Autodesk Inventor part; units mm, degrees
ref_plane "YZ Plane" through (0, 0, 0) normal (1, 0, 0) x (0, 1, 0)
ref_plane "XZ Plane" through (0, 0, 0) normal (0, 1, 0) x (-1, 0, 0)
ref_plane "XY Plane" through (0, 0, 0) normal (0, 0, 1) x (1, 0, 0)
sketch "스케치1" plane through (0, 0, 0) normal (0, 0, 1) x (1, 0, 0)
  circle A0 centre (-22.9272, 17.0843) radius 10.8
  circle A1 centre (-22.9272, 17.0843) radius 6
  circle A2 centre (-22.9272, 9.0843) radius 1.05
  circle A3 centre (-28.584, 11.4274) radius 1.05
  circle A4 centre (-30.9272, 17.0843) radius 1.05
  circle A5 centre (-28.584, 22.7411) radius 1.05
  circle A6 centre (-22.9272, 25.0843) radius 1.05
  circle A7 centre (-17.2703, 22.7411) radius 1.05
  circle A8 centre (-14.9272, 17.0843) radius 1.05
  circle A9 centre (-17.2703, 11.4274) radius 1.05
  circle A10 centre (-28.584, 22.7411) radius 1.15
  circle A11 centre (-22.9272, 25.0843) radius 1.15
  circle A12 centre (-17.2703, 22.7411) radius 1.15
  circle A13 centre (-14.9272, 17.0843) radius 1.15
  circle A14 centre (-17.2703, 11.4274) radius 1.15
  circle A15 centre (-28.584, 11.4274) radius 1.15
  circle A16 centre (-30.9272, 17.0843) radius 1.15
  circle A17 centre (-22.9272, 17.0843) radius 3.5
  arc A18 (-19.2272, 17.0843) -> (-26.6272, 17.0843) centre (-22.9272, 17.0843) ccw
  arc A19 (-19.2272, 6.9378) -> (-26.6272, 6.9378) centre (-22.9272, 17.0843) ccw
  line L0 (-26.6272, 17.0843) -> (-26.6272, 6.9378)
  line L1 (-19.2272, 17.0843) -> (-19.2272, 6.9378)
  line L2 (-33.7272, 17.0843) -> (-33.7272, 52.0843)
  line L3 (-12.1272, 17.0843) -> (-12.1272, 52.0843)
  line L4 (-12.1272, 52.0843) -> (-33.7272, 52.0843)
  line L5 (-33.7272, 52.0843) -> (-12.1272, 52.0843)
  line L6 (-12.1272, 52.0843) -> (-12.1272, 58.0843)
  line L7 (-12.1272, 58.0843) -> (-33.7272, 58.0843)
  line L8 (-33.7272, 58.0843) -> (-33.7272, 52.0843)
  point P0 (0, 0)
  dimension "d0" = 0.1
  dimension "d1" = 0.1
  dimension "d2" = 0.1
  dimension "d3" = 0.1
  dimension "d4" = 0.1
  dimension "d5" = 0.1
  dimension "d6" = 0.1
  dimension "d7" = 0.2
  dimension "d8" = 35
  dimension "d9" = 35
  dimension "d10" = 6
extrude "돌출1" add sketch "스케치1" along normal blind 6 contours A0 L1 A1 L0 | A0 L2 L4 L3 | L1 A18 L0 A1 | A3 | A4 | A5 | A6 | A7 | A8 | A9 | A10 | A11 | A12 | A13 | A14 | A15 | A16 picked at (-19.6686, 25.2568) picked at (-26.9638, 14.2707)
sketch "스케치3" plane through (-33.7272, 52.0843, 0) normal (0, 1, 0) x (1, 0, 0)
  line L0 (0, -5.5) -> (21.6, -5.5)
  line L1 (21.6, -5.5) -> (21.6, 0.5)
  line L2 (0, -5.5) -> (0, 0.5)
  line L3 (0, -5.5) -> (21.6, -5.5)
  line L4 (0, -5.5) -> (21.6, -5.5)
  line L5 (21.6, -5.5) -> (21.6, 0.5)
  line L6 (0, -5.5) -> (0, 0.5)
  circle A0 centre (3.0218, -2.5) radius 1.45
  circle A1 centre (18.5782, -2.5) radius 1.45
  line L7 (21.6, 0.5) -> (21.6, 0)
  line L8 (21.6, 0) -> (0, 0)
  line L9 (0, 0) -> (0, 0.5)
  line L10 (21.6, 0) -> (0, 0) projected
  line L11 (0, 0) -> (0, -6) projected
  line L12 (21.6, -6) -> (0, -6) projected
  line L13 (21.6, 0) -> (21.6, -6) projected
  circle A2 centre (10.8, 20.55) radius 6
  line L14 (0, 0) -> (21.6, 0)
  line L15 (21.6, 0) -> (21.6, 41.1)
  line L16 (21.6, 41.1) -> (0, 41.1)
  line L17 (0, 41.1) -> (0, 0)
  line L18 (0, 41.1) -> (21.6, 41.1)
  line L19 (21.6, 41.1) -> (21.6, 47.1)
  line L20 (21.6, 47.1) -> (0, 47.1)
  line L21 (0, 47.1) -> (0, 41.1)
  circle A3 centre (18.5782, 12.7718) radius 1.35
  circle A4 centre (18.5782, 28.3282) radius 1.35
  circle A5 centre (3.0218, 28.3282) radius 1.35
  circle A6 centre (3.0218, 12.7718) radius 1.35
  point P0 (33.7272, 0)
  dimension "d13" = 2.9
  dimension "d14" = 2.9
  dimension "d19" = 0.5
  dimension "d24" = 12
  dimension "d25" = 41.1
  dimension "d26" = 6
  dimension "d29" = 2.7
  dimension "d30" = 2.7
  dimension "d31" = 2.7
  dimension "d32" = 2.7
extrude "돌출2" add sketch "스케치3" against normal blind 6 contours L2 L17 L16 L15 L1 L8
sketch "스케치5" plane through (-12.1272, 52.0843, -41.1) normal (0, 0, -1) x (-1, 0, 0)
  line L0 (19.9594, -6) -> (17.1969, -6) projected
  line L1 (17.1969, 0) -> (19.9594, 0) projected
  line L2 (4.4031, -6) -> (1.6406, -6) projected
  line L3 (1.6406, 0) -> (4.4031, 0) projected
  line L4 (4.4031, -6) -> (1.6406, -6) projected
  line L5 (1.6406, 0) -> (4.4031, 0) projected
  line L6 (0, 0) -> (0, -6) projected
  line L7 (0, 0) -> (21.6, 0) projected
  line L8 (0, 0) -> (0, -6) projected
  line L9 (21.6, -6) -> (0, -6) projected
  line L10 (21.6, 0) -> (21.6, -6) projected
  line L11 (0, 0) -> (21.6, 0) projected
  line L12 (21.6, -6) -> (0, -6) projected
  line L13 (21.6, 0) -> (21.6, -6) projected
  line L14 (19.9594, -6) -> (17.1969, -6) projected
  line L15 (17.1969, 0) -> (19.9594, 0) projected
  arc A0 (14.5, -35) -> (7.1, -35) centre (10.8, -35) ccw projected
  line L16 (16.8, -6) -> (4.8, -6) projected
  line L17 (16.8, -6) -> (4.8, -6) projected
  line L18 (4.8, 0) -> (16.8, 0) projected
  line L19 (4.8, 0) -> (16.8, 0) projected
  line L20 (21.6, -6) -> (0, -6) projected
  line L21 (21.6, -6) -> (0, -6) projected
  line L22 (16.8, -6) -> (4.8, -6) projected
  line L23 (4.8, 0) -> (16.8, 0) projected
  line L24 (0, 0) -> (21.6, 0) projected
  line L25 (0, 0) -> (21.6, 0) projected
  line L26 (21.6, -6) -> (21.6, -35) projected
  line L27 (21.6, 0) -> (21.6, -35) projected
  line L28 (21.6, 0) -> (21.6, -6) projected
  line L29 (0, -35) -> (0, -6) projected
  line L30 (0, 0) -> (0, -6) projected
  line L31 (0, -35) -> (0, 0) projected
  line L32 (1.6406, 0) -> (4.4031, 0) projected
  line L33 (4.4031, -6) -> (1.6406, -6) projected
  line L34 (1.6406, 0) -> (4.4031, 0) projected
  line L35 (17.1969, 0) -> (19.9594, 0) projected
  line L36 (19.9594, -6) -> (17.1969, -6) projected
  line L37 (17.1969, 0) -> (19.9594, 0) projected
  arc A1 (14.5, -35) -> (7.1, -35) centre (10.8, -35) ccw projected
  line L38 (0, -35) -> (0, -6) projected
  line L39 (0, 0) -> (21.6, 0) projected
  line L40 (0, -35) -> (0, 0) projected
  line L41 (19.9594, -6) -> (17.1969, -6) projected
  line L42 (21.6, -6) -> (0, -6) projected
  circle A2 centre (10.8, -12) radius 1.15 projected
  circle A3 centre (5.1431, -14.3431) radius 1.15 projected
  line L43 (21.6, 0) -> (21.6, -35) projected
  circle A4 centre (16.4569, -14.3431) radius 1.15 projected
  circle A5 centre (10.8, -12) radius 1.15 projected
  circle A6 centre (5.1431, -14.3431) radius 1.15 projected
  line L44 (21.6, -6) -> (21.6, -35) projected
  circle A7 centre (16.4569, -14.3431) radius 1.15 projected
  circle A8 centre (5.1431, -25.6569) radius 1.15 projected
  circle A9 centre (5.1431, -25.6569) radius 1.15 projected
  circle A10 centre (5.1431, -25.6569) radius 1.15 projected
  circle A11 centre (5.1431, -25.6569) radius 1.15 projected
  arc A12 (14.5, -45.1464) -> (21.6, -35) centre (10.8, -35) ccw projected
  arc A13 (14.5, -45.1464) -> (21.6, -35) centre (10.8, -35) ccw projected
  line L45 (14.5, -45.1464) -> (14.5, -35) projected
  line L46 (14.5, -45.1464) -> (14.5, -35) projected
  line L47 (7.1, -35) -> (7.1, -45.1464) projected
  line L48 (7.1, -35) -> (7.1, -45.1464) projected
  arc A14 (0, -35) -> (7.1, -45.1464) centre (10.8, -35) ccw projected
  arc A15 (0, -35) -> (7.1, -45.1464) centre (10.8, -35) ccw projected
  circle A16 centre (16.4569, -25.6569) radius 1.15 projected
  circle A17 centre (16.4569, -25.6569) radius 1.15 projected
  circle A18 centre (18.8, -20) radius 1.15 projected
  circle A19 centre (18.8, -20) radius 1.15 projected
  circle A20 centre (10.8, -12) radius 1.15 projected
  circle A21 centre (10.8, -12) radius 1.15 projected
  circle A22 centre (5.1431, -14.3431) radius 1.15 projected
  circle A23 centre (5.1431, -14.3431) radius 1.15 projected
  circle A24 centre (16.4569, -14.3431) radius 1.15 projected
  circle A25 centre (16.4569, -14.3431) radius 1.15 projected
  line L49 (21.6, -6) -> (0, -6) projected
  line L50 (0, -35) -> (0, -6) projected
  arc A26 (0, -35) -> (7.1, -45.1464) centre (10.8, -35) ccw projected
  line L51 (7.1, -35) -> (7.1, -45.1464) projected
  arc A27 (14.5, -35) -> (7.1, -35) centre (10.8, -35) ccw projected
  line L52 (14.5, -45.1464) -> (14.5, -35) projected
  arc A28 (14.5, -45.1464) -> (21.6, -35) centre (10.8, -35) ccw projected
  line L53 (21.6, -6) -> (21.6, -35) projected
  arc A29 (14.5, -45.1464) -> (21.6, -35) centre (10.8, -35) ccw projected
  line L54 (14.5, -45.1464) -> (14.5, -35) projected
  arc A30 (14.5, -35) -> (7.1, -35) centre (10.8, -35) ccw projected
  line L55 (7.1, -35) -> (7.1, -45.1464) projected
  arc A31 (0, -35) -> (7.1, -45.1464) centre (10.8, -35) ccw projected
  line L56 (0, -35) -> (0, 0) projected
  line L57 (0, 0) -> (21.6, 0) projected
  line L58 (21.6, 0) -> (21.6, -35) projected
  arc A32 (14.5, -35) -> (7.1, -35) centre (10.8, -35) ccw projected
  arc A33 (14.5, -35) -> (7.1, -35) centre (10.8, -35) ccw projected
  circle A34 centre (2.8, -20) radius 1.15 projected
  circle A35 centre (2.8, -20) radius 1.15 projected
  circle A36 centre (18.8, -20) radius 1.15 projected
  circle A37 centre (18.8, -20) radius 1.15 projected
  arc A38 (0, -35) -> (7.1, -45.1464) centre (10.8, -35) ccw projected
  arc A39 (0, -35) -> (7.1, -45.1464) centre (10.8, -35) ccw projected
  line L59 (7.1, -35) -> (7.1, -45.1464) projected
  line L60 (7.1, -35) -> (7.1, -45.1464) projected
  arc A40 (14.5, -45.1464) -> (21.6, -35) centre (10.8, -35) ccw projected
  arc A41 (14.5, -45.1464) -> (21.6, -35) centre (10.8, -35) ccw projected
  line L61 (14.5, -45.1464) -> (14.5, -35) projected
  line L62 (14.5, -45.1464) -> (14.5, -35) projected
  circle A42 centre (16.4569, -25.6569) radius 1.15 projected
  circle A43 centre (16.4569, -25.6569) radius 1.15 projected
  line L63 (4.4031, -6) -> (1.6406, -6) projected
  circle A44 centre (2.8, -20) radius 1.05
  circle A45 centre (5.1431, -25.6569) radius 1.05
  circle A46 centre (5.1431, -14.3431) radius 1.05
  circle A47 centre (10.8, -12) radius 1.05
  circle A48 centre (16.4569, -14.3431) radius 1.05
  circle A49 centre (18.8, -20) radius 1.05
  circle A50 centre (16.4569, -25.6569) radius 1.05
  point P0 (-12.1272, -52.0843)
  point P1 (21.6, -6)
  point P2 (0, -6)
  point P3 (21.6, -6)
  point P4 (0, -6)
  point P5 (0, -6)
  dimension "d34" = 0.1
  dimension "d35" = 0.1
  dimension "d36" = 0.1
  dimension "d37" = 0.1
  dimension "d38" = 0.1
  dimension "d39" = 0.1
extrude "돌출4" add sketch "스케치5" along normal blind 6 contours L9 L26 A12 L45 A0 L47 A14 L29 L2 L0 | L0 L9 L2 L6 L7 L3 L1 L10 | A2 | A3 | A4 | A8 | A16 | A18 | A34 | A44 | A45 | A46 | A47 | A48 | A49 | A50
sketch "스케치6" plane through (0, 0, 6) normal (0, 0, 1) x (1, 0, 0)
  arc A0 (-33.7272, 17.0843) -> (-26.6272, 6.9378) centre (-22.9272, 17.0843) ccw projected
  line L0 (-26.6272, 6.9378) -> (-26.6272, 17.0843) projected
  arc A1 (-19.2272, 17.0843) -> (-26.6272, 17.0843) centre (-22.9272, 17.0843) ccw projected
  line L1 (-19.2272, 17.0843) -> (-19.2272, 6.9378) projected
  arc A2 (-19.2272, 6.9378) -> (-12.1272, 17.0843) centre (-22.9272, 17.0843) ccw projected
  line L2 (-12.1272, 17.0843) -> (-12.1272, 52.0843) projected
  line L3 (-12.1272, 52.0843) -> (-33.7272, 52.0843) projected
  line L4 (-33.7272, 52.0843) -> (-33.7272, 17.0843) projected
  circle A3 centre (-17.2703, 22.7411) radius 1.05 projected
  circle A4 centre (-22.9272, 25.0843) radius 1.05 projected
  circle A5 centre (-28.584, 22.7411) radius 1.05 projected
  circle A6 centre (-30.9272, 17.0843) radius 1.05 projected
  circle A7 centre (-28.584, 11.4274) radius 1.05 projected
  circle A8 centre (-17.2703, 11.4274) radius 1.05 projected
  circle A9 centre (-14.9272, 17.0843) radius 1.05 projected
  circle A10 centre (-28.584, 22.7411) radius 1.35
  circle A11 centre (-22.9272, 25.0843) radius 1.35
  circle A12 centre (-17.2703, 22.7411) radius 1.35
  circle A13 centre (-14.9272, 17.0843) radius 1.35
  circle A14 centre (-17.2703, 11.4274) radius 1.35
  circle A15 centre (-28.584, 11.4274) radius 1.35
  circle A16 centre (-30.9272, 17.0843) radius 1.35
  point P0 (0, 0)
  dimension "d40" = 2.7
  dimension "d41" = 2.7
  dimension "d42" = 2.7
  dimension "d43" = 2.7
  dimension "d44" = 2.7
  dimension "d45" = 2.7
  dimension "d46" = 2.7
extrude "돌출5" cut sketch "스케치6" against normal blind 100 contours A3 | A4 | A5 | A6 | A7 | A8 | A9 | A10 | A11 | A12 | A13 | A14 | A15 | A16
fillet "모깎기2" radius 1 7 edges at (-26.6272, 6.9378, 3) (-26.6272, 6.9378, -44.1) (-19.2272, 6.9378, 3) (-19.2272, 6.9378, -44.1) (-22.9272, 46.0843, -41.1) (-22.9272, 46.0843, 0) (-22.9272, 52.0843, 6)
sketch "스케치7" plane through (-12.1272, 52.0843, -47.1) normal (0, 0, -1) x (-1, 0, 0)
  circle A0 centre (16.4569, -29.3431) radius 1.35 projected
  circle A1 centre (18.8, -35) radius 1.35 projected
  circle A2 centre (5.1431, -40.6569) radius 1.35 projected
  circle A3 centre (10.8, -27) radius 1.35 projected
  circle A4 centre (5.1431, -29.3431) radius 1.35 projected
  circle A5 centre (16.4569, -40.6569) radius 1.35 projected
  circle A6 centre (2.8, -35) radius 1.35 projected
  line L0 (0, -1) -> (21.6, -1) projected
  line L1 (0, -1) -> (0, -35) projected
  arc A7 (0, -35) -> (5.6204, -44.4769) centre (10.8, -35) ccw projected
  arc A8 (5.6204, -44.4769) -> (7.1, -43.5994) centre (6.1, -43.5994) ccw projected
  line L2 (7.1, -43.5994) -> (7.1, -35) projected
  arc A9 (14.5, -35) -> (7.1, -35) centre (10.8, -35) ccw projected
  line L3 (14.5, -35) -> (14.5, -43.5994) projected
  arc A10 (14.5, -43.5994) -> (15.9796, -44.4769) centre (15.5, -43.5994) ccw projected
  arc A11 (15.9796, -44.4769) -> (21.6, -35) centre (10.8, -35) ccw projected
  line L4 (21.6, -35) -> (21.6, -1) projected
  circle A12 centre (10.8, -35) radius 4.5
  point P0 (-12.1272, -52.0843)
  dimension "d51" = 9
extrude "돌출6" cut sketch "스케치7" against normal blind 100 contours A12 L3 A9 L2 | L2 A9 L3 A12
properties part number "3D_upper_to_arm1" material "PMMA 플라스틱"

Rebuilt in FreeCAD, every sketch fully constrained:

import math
import FreeCAD as App
import Part
import Sketcher


def edges_at(feature, points):
    """Names of the edges that pass closest to the given points."""
    edges = feature.Shape.Edges
    near = lambda p: min(range(len(edges)), key=lambda i: edges[i].distToShape(Part.Vertex(*p))[0])
    return sorted({f"Edge{near(p) + 1}" for p in points})


def add_polygon(sketch, points):
    """Adds a closed chain of lines whose ends are joined by coincident constraints."""
    first, n = sketch.GeometryCount, len(points)
    for a, b in zip(points, points[1:] + points[:1]):
        sketch.addGeometry(Part.LineSegment(App.Vector(*a, 0), App.Vector(*b, 0)), False)
    for i in range(n):
        sketch.addConstraint(Sketcher.Constraint("Coincident", first + i, 2, first + (i + 1) % n, 1))

doc = App.newDocument("Part")
body = doc.addObject("PartDesign::Body", "Body")

# Sketch on XY plane
sketch1 = body.newObject("Sketcher::SketchObject", "Sketch")
sketch1.AttachmentSupport = (doc.getObject("XY_Plane"), [""])
sketch1.MapMode = "FlatFace"
sketch1.addGeometry(Part.ArcOfCircle(Part.Circle(App.Vector(-22.9, 17.1, 0), App.Vector(0, 0, 1), 10.8), math.radians(-70), math.radians(0)), False)
sketch1.addGeometry(Part.LineSegment(App.Vector(-12.1, 17.1, 0), App.Vector(-12.1, 52.1, 0)), False)
sketch1.addGeometry(Part.LineSegment(App.Vector(-12.1, 52.1, 0), App.Vector(-33.7, 52.1, 0)), False)
sketch1.addGeometry(Part.LineSegment(App.Vector(-33.7, 52.1, 0), App.Vector(-33.7, 17.1, 0)), False)
sketch1.addGeometry(Part.ArcOfCircle(Part.Circle(App.Vector(-22.9, 17.1, 0), App.Vector(0, 0, 1), 10.8), math.radians(180), math.radians(250)), False)
sketch1.addGeometry(Part.LineSegment(App.Vector(-26.6, 6.9, 0), App.Vector(-26.6, 17.1, 0)), False)
sketch1.addGeometry(Part.ArcOfCircle(Part.Circle(App.Vector(-22.9, 17.1, 0), App.Vector(0, 0, 1), 3.7), math.radians(0), math.radians(180)), False)
sketch1.addGeometry(Part.LineSegment(App.Vector(-19.2, 17.1, 0), App.Vector(-19.2, 6.9, 0)), False)
sketch1.addConstraint(Sketcher.Constraint("Tangent", 0, 2, 1, 1))
sketch1.addConstraint(Sketcher.Constraint("Coincident", 1, 2, 2, 1))
sketch1.addConstraint(Sketcher.Constraint("Coincident", 2, 2, 3, 1))
sketch1.addConstraint(Sketcher.Constraint("Tangent", 3, 2, 4, 1))
sketch1.addConstraint(Sketcher.Constraint("Coincident", 4, 2, 5, 1))
sketch1.addConstraint(Sketcher.Constraint("Tangent", 5, 2, 6, 2))
sketch1.addConstraint(Sketcher.Constraint("Tangent", 6, 1, 7, 1))
sketch1.addConstraint(Sketcher.Constraint("Coincident", 7, 2, 0, 1))
sketch1.addConstraint(Sketcher.Constraint("Vertical", 1))
sketch1.addConstraint(Sketcher.Constraint("Horizontal", 2))
sketch1.addConstraint(Sketcher.Constraint("Vertical", 3))
sketch1.addConstraint(Sketcher.Constraint("Vertical", 5))
sketch1.addConstraint(Sketcher.Constraint("Vertical", 7))
sketch1.addConstraint(Sketcher.Constraint("Coincident", 4, 3, 0, 3))
sketch1.addConstraint(Sketcher.Constraint("Coincident", 6, 3, 0, 3))
sketch1.addConstraint(Sketcher.Constraint("Equal", 0, 4))
sketch1.addConstraint(Sketcher.Constraint("DistanceY", 1, 1, 1, 2, 35.0))
sketch1.addConstraint(Sketcher.Constraint("Radius", 0, 10.8))
sketch1.addConstraint(Sketcher.Constraint("Radius", 6, 3.7))
sketch1.addConstraint(Sketcher.Constraint("DistanceX", 0, 3, -1, 1, 22.9272))
sketch1.addConstraint(Sketcher.Constraint("DistanceY", -1, 1, 0, 3, 17.0843))
pad1 = body.newObject("PartDesign::Pad", "Pad")
pad1.Profile = sketch1
pad1.Length = 6

# Sketch on XZ plane
sketch2 = body.newObject("Sketcher::SketchObject", "Sketch001")
sketch2.AttachmentSupport = (doc.getObject("XZ_Plane"), [""])
sketch2.MapMode = "FlatFace"
sketch2.AttachmentOffset = App.Placement(App.Vector(0, 0, -52.0843), App.Rotation())
add_polygon(sketch2, [(-33.7, -41.1), (-33.7, 0), (-12.1, 0), (-12.1, -41.1)])  # lines 0-3
sketch2.addGeometry(Part.Circle(App.Vector(-30.7, -12.8, 0), App.Vector(0, 0, 1), 1.4), False)  # 4
sketch2.addGeometry(Part.Circle(App.Vector(-15.1, -12.8, 0), App.Vector(0, 0, 1), 1.4), False)  # 5
sketch2.addGeometry(Part.Circle(App.Vector(-30.7, -28.3, 0), App.Vector(0, 0, 1), 1.4), False)  # 6
sketch2.addGeometry(Part.Circle(App.Vector(-22.9, -20.6, 0), App.Vector(0, 0, 1), 6), False)  # 7
sketch2.addGeometry(Part.Circle(App.Vector(-15.1, -28.3, 0), App.Vector(0, 0, 1), 1.4), False)  # 8
sketch2.addConstraint(Sketcher.Constraint("Vertical", 0))
sketch2.addConstraint(Sketcher.Constraint("Horizontal", 1))
sketch2.addConstraint(Sketcher.Constraint("Vertical", 2))
sketch2.addConstraint(Sketcher.Constraint("Horizontal", 3))
sketch2.addConstraint(Sketcher.Constraint("Equal", 4, 5))
sketch2.addConstraint(Sketcher.Constraint("Equal", 5, 6))
sketch2.addConstraint(Sketcher.Constraint("Equal", 6, 8))
sketch2.addConstraint(Sketcher.Constraint("PointOnObject", 0, 2, -1))
sketch2.addConstraint(Sketcher.Constraint("Horizontal", 4, 3, 5, 3))
sketch2.addConstraint(Sketcher.Constraint("Horizontal", 6, 3, 8, 3))
sketch2.addConstraint(Sketcher.Constraint("Vertical", 4, 3, 6, 3))
sketch2.addConstraint(Sketcher.Constraint("Vertical", 5, 3, 8, 3))
sketch2.addConstraint(Sketcher.Constraint("Diameter", 7, 12.0))
sketch2.addConstraint(Sketcher.Constraint("Diameter", 4, 2.7))
sketch2.addConstraint(Sketcher.Constraint("DistanceY", 0, 1, 0, 2, 41.1))
sketch2.addConstraint(Sketcher.Constraint("DistanceX", 1, 1, 1, 2, 21.6))
sketch2.addConstraint(Sketcher.Constraint("DistanceX", 0, 2, 7, 3, 10.8))
sketch2.addConstraint(Sketcher.Constraint("DistanceY", 7, 3, -1, 1, 20.55))
sketch2.addConstraint(Sketcher.Constraint("DistanceX", 5, 3, -1, 1, 15.149))
sketch2.addConstraint(Sketcher.Constraint("DistanceX", 4, 3, -1, 1, 30.7054))
sketch2.addConstraint(Sketcher.Constraint("DistanceY", 4, 3, -1, 1, 12.7718))
sketch2.addConstraint(Sketcher.Constraint("DistanceY", 6, 3, -1, 1, 28.3282))
sketch2.addConstraint(Sketcher.Constraint("DistanceX", 7, 3, -1, 1, 22.9272))
pad2 = body.newObject("PartDesign::Pad", "Pad001")
pad2.Profile = sketch2
pad2.Length = 6

# Sketch on XY plane
sketch3 = body.newObject("Sketcher::SketchObject", "Sketch002")
sketch3.AttachmentSupport = (doc.getObject("XY_Plane"), [""])
sketch3.MapMode = "FlatFace"
sketch3.AttachmentOffset = App.Placement(App.Vector(0, 0, -41.1), App.Rotation())
sketch3.addGeometry(Part.LineSegment(App.Vector(-33.7, 17.1, 0), App.Vector(-33.7, 52.1, 0)), False)
sketch3.addGeometry(Part.LineSegment(App.Vector(-33.7, 52.1, 0), App.Vector(-12.1, 52.1, 0)), False)
sketch3.addGeometry(Part.LineSegment(App.Vector(-12.1, 52.1, 0), App.Vector(-12.1, 17.1, 0)), False)
sketch3.addGeometry(Part.ArcOfCircle(Part.Circle(App.Vector(-22.9, 17.1, 0), App.Vector(0, 0, 1), 10.8), math.radians(-70), math.radians(0)), False)
sketch3.addGeometry(Part.LineSegment(App.Vector(-19.2, 6.9, 0), App.Vector(-19.2, 17.1, 0)), False)
sketch3.addGeometry(Part.ArcOfCircle(Part.Circle(App.Vector(-22.9, 17.1, 0), App.Vector(0, 0, 1), 3.7), math.radians(0), math.radians(180)), False)
sketch3.addGeometry(Part.LineSegment(App.Vector(-26.6, 17.1, 0), App.Vector(-26.6, 6.9, 0)), False)
sketch3.addGeometry(Part.ArcOfCircle(Part.Circle(App.Vector(-22.9, 17.1, 0), App.Vector(0, 0, 1), 10.8), math.radians(180), math.radians(250)), False)
sketch3.addConstraint(Sketcher.Constraint("Coincident", 0, 2, 1, 1))
sketch3.addConstraint(Sketcher.Constraint("Coincident", 1, 2, 2, 1))
sketch3.addConstraint(Sketcher.Constraint("Tangent", 2, 2, 3, 2))
sketch3.addConstraint(Sketcher.Constraint("Coincident", 3, 1, 4, 1))
sketch3.addConstraint(Sketcher.Constraint("Tangent", 4, 2, 5, 1))
sketch3.addConstraint(Sketcher.Constraint("Tangent", 5, 2, 6, 1))
sketch3.addConstraint(Sketcher.Constraint("Coincident", 6, 2, 7, 2))
sketch3.addConstraint(Sketcher.Constraint("Tangent", 7, 1, 0, 1))
sketch3.addConstraint(Sketcher.Constraint("Vertical", 0))
sketch3.addConstraint(Sketcher.Constraint("Horizontal", 1))
sketch3.addConstraint(Sketcher.Constraint("Vertical", 2))
sketch3.addConstraint(Sketcher.Constraint("Vertical", 4))
sketch3.addConstraint(Sketcher.Constraint("Vertical", 6))
sketch3.addConstraint(Sketcher.Constraint("Coincident", 5, 3, 3, 3))
sketch3.addConstraint(Sketcher.Constraint("Coincident", 7, 3, 3, 3))
sketch3.addConstraint(Sketcher.Constraint("Equal", 3, 7))
sketch3.addConstraint(Sketcher.Constraint("Radius", 3, 10.8))
sketch3.addConstraint(Sketcher.Constraint("Radius", 5, 3.7))
sketch3.addConstraint(Sketcher.Constraint("DistanceY", 0, 1, 0, 2, 35.0))
sketch3.addConstraint(Sketcher.Constraint("DistanceY", -1, 1, 3, 1, 6.938))
sketch3.addConstraint(Sketcher.Constraint("DistanceX", 3, 3, -1, 1, 22.9272))
pad3 = body.newObject("PartDesign::Pad", "Pad002")
pad3.Profile = sketch3
pad3.Length = 6
pad3.Reversed = True

# Sketch on XY plane
sketch4 = body.newObject("Sketcher::SketchObject", "Sketch003")
sketch4.AttachmentSupport = (doc.getObject("XY_Plane"), [""])
sketch4.MapMode = "FlatFace"
sketch4.AttachmentOffset = App.Placement(App.Vector(0, 0, 6), App.Rotation())
sketch4.addGeometry(Part.Circle(App.Vector(-17.3, 22.7, 0), App.Vector(0, 0, 1), 1.4), False)
sketch4.addGeometry(Part.Circle(App.Vector(-22.9, 25.1, 0), App.Vector(0, 0, 1), 1.4), False)
sketch4.addGeometry(Part.Circle(App.Vector(-28.6, 22.7, 0), App.Vector(0, 0, 1), 1.4), False)
sketch4.addGeometry(Part.Circle(App.Vector(-30.9, 17.1, 0), App.Vector(0, 0, 1), 1.4), False)
sketch4.addGeometry(Part.Circle(App.Vector(-28.6, 11.4, 0), App.Vector(0, 0, 1), 1.4), False)
sketch4.addGeometry(Part.Circle(App.Vector(-17.3, 11.4, 0), App.Vector(0, 0, 1), 1.4), False)
sketch4.addGeometry(Part.Circle(App.Vector(-14.9, 17.1, 0), App.Vector(0, 0, 1), 1.4), False)
sketch4.addConstraint(Sketcher.Constraint("Equal", 0, 1))
sketch4.addConstraint(Sketcher.Constraint("Equal", 1, 2))
sketch4.addConstraint(Sketcher.Constraint("Equal", 2, 3))
sketch4.addConstraint(Sketcher.Constraint("Equal", 3, 4))
sketch4.addConstraint(Sketcher.Constraint("Equal", 4, 5))
sketch4.addConstraint(Sketcher.Constraint("Equal", 5, 6))
sketch4.addConstraint(Sketcher.Constraint("Horizontal", 0, 3, 2, 3))
sketch4.addConstraint(Sketcher.Constraint("Horizontal", 4, 3, 5, 3))
sketch4.addConstraint(Sketcher.Constraint("Horizontal", 3, 3, 6, 3))
sketch4.addConstraint(Sketcher.Constraint("Vertical", 2, 3, 4, 3))
sketch4.addConstraint(Sketcher.Constraint("Vertical", 0, 3, 5, 3))
sketch4.addConstraint(Sketcher.Constraint("Diameter", 0, 2.7))
sketch4.addConstraint(Sketcher.Constraint("DistanceX", 3, 3, 1, 3, 8.0))
sketch4.addConstraint(Sketcher.Constraint("DistanceY", 3, 3, 1, 3, 8.0))
sketch4.addConstraint(Sketcher.Constraint("DistanceX", 1, 3, 6, 3, 8.0))
sketch4.addConstraint(Sketcher.Constraint("DistanceY", -1, 1, 0, 3, 22.741))
sketch4.addConstraint(Sketcher.Constraint("DistanceX", 2, 3, -1, 1, 28.584))
sketch4.addConstraint(Sketcher.Constraint("DistanceX", 1, 3, 0, 3, 5.657))
sketch4.addConstraint(Sketcher.Constraint("DistanceY", 4, 3, 3, 3, 5.657))
sketch4.addConstraint(Sketcher.Constraint("DistanceX", 0, 3, -1, 1, 17.2703))
sketch4.addConstraint(Sketcher.Constraint("DistanceY", -1, 1, 1, 3, 25.0843))
pocket1 = body.newObject("PartDesign::Pocket", "Pocket")
pocket1.Profile = sketch4
pocket1.Length = 100
doc.recompute()

fillet = body.newObject("PartDesign::Fillet", "Fillet")
fillet.Base = (pocket1, edges_at(pocket1, [
    (-26.627, 6.938, 3),
    (-26.627, 6.938, -44.1),
    (-19.227, 6.938, 3),
    (-19.227, 6.938, -44.1),
    (-22.927, 46.084, -41.1),
    (-22.927, 46.084, 0),
    (-22.927, 52.084, 6),
]))
fillet.Radius = 1

# Sketch on XY plane
sketch5 = body.newObject("Sketcher::SketchObject", "Sketch004")
sketch5.AttachmentSupport = (doc.getObject("XY_Plane"), [""])
sketch5.MapMode = "FlatFace"
sketch5.AttachmentOffset = App.Placement(App.Vector(0, 0, -47.1), App.Rotation())
sketch5.addGeometry(Part.Circle(App.Vector(-22.9, 17.1, 0), App.Vector(0, 0, 1), 4.5), False)
sketch5.addConstraint(Sketcher.Constraint("Diameter", 0, 9.0))
sketch5.addConstraint(Sketcher.Constraint("DistanceX", 0, 3, -1, 1, 22.9272))
sketch5.addConstraint(Sketcher.Constraint("DistanceY", -1, 1, 0, 3, 17.0843))
pocket2 = body.newObject("PartDesign::Pocket", "Pocket001")
pocket2.Profile = sketch5
pocket2.Length = 100
pocket2.Reversed = True

doc.recompute()
